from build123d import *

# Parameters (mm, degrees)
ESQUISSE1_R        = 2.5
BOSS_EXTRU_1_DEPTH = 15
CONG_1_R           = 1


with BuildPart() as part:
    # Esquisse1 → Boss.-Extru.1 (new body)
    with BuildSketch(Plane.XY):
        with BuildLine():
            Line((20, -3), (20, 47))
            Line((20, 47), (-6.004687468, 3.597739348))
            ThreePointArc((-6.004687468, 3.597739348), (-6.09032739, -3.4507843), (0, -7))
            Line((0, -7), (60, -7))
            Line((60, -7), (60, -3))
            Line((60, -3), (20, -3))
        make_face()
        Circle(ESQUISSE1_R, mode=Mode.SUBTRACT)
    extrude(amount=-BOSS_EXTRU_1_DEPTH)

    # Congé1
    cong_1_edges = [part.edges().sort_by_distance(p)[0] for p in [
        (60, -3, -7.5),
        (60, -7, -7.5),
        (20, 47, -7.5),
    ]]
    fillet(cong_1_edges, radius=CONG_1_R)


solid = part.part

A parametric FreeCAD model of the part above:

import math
import FreeCAD as App
import Part
import Sketcher

V = App.Vector


def edges_at(feature, points):
    """Names of the edges that pass closest to the given points."""
    edges = feature.Shape.Edges
    near = lambda p: min(range(len(edges)), key=lambda i: edges[i].distToShape(Part.Vertex(*p))[0])
    return sorted({f"Edge{near(p) + 1}" for p in points})

doc = App.newDocument("Part")
body = doc.addObject("PartDesign::Body", "Body")

# Sketch on XY plane
sketch1 = body.newObject("Sketcher::SketchObject", "Sketch")
sketch1.AttachmentSupport = (doc.getObject("XY_Plane"), [""])
sketch1.MapMode = "FlatFace"
sketch1.addGeometry([
    Part.LineSegment(V(20, -3, 0), V(20, 47, 0)),  # 0
    Part.LineSegment(V(20, 47, 0), V(-6, 3.6, 0)),  # 1
    Part.ArcOfCircle(Part.Circle(V(0, 0, 0), V(0, 0, 1), 7), math.radians(149), math.radians(270)),  # 2
    Part.LineSegment(V(0, -7, 0), V(60, -7, 0)),  # 3
    Part.LineSegment(V(60, -7, 0), V(60, -3, 0)),  # 4
    Part.LineSegment(V(60, -3, 0), V(20, -3, 0)),  # 5
    Part.Circle(V(0, 0, 0), V(0, 0, 1), 2.5),  # 6
], False)
sketch1.addConstraint([
    Sketcher.Constraint("Coincident", 0, 2, 1, 1),
    Sketcher.Constraint("Tangent", 1, 2, 2, 1),
    Sketcher.Constraint("Tangent", 2, 2, 3, 1),
    Sketcher.Constraint("Coincident", 3, 2, 4, 1),
    Sketcher.Constraint("Coincident", 4, 2, 5, 1),
    Sketcher.Constraint("Coincident", 5, 2, 0, 1),
    Sketcher.Constraint("Vertical", 0),
    Sketcher.Constraint("Horizontal", 3),
    Sketcher.Constraint("Vertical", 4),
    Sketcher.Constraint("Horizontal", 5),
    Sketcher.Constraint("Coincident", 2, 3, -1, 1),
    Sketcher.Constraint("Coincident", 6, 3, -1, 1),
    Sketcher.Constraint("Diameter", 6, 5.0),
    Sketcher.Constraint("Radius", 2, 7.0),
    Sketcher.Constraint("DistanceX", 3, 1, 3, 2, 60.0),
    Sketcher.Constraint("DistanceX", 5, 2, 5, 1, 40.0),
    Sketcher.Constraint("DistanceY", 0, 1, 0, 2, 50.0),
    Sketcher.Constraint("DistanceY", 4, 1, 4, 2, 4.0),
])
pad1 = body.newObject("PartDesign::Pad", "Pad")
pad1.Profile = sketch1
pad1.Length = 15
pad1.Reversed = True
doc.recompute()

fillet = body.newObject("PartDesign::Fillet", "Fillet")
fillet.Base = (pad1, edges_at(pad1, [(60, -3, -7.5), (60, -7, -7.5), (20, 47, -7.5)]))
fillet.Radius = 1

doc.recompute()
